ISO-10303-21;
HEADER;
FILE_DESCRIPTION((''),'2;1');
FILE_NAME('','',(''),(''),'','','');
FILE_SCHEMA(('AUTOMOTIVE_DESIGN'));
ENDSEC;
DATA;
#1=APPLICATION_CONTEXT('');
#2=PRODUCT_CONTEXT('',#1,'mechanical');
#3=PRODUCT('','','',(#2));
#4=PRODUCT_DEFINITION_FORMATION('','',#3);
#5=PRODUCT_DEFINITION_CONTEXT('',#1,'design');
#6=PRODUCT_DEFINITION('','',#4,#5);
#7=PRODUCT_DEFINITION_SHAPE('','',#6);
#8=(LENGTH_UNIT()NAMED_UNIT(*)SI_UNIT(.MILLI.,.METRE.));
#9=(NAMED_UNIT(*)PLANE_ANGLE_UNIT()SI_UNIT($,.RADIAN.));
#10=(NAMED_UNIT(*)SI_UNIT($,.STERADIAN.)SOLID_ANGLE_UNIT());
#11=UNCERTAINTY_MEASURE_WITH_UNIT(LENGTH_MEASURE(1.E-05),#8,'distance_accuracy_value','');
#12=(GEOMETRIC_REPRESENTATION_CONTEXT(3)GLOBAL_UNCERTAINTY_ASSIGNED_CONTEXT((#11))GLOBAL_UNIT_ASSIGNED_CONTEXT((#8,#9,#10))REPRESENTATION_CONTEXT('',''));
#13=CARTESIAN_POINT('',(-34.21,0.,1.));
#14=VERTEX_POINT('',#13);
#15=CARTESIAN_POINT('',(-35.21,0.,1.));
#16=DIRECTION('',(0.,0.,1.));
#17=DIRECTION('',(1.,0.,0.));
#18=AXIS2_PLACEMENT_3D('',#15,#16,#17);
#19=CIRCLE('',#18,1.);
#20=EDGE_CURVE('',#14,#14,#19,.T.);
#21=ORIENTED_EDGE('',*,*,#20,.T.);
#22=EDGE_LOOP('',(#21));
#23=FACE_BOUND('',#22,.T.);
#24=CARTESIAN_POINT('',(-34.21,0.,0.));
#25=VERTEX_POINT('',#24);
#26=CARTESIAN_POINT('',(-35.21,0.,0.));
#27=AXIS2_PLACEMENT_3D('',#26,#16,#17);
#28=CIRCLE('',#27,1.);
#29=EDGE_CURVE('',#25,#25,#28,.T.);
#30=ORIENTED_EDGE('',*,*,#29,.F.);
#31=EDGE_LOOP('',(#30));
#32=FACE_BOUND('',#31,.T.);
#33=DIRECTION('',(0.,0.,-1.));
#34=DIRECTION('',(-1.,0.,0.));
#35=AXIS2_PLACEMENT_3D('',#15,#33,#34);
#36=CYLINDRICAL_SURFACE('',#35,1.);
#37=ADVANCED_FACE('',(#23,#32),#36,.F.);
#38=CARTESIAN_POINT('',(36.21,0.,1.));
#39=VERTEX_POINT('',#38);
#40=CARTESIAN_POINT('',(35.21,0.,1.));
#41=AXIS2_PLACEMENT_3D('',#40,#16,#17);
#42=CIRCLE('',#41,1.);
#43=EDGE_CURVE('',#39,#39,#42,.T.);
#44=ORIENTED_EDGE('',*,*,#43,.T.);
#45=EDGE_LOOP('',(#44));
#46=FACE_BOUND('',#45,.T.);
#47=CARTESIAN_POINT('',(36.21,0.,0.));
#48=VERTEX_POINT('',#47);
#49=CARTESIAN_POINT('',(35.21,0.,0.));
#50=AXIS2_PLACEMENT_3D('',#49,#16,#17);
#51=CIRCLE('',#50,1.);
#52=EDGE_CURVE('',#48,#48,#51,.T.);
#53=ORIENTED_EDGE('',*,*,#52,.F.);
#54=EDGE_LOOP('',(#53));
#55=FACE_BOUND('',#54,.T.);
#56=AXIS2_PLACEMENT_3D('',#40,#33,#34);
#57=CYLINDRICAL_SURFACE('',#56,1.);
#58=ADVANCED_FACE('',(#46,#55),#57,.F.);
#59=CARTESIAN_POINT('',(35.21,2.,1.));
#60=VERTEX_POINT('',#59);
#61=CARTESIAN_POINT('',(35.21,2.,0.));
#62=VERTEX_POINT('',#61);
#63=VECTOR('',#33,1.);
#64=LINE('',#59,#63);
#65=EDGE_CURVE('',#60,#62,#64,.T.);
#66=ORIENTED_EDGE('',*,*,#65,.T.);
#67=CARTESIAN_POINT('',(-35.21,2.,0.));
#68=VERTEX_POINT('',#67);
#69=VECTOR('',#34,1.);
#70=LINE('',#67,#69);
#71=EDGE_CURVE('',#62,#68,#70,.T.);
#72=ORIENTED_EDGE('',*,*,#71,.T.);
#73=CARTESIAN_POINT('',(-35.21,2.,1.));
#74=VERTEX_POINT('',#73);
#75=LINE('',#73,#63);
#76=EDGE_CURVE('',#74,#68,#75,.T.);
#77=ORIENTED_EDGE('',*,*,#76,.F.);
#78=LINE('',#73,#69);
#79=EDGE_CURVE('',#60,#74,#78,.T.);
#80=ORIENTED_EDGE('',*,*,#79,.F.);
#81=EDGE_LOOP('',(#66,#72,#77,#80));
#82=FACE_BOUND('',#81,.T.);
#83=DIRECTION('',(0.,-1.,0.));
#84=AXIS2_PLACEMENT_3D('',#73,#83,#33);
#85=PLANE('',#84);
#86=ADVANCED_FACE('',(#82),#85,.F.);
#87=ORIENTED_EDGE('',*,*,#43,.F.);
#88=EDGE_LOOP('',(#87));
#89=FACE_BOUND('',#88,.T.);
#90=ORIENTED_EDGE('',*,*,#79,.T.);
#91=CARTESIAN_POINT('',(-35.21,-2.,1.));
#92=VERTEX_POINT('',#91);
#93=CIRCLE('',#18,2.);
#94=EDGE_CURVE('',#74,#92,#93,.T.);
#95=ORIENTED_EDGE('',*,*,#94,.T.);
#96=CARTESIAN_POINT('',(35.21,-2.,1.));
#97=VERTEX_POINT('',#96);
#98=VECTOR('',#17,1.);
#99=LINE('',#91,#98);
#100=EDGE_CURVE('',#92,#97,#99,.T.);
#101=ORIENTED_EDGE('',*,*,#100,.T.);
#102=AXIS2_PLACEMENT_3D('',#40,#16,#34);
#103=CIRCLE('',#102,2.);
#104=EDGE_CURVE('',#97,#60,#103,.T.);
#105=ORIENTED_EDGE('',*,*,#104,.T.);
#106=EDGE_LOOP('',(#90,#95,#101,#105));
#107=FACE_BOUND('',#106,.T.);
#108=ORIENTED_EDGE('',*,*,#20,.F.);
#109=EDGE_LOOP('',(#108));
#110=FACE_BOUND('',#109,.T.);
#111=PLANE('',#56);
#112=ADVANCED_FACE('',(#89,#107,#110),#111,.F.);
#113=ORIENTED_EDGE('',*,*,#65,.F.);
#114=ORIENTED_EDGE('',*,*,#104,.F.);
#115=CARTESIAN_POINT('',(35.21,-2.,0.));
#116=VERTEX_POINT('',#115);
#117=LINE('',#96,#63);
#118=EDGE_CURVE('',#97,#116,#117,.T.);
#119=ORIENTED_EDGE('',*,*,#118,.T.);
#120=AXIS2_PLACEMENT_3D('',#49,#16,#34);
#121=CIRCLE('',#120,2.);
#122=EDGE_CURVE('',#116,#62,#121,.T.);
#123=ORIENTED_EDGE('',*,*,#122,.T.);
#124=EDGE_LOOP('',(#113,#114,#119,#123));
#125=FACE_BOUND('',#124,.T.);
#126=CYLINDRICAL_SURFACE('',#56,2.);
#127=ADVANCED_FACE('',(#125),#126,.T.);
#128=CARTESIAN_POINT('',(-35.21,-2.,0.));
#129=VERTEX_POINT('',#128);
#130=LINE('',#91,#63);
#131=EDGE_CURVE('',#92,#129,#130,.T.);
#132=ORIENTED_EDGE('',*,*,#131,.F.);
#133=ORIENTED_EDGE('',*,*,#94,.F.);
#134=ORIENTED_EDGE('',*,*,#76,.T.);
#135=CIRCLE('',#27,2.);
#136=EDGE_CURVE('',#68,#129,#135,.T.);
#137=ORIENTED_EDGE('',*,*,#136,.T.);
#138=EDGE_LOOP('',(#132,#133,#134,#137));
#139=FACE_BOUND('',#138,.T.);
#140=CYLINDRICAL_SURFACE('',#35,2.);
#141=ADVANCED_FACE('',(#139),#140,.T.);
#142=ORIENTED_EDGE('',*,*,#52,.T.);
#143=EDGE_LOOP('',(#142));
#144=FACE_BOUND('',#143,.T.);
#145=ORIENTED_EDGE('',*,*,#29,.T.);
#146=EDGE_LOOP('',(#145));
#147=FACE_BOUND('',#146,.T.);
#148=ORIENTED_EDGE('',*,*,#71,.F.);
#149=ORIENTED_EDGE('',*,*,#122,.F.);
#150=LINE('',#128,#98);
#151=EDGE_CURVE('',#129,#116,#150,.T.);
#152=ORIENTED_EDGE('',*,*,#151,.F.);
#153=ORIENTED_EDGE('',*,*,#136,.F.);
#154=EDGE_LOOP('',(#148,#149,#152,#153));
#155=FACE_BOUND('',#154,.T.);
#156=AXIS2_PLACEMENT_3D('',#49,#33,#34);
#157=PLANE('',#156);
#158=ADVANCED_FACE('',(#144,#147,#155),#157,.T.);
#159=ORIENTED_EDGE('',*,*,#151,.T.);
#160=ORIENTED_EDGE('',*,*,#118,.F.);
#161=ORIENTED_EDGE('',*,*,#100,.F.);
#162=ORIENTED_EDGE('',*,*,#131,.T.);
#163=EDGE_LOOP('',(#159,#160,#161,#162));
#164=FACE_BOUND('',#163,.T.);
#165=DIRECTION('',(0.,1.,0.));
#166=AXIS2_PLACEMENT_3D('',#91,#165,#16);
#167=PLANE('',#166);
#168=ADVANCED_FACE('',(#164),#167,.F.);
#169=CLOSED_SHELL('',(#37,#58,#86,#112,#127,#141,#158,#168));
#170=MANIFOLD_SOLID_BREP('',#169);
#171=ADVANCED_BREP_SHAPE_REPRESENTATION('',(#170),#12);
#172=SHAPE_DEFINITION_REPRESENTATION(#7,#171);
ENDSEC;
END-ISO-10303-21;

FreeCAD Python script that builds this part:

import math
import FreeCAD as App
import Part
import Sketcher
Q = App.Units.Quantity

doc = App.newDocument("Part")
body = doc.addObject("PartDesign::Body", "Body")

# Sketch on XY plane
sketch1 = body.newObject("Sketcher::SketchObject", "Sketch")
sketch1.AttachmentSupport = (doc.getObject("XY_Plane"), [""])
sketch1.MapMode = "FlatFace"
sketch1.addGeometry(Part.LineSegment(App.Vector(35.21, 2, 0), App.Vector(-35.21, 2, 0)), False)
sketch1.addGeometry(Part.ArcOfCircle(Part.Circle(App.Vector(-35.21, 0, 0), App.Vector(0, 0, 1), 2), math.radians(90), math.radians(270)), False)
sketch1.addGeometry(Part.LineSegment(App.Vector(-35.21, -2, 0), App.Vector(35.21, -2, 0)), False)
sketch1.addGeometry(Part.ArcOfCircle(Part.Circle(App.Vector(35.21, 0, 0), App.Vector(0, 0, 1), 2), math.radians(-90), math.radians(90)), False)
sketch1.addGeometry(Part.Circle(App.Vector(35.21, 0, 0), App.Vector(0, 0, 1), 1), False)
sketch1.addGeometry(Part.Circle(App.Vector(-35.21, 0, 0), App.Vector(0, 0, 1), 1), False)
sketch1.addConstraint(Sketcher.Constraint("Tangent", 0, 2, 1, 1))
sketch1.addConstraint(Sketcher.Constraint("Tangent", 1, 2, 2, 1))
sketch1.addConstraint(Sketcher.Constraint("Tangent", 2, 2, 3, 1))
sketch1.addConstraint(Sketcher.Constraint("Tangent", 3, 2, 0, 1))
sketch1.addConstraint(Sketcher.Constraint("Horizontal", 0))
sketch1.addConstraint(Sketcher.Constraint("Horizontal", 2))
sketch1.addConstraint(Sketcher.Constraint("Coincident", 4, 3, 3, 3))
sketch1.addConstraint(Sketcher.Constraint("Coincident", 5, 3, 1, 3))
sketch1.addConstraint(Sketcher.Constraint("Equal", 4, 5))
sketch1.addConstraint(Sketcher.Constraint("Symmetric", 1, 3, 3, 3, -1, 1))
sketch1.addConstraint(Sketcher.Constraint("Diameter", 4, Q("2 mm")))
sketch1.addConstraint(Sketcher.Constraint("Radius", 1, Q("2 mm")))
sketch1.addConstraint(Sketcher.Constraint("DistanceX", 0, 2, 0, 1, Q("70.42 mm")))
pad1 = body.newObject("PartDesign::Pad", "Pad")
pad1.Profile = sketch1
pad1.Length = 1

doc.recompute()
